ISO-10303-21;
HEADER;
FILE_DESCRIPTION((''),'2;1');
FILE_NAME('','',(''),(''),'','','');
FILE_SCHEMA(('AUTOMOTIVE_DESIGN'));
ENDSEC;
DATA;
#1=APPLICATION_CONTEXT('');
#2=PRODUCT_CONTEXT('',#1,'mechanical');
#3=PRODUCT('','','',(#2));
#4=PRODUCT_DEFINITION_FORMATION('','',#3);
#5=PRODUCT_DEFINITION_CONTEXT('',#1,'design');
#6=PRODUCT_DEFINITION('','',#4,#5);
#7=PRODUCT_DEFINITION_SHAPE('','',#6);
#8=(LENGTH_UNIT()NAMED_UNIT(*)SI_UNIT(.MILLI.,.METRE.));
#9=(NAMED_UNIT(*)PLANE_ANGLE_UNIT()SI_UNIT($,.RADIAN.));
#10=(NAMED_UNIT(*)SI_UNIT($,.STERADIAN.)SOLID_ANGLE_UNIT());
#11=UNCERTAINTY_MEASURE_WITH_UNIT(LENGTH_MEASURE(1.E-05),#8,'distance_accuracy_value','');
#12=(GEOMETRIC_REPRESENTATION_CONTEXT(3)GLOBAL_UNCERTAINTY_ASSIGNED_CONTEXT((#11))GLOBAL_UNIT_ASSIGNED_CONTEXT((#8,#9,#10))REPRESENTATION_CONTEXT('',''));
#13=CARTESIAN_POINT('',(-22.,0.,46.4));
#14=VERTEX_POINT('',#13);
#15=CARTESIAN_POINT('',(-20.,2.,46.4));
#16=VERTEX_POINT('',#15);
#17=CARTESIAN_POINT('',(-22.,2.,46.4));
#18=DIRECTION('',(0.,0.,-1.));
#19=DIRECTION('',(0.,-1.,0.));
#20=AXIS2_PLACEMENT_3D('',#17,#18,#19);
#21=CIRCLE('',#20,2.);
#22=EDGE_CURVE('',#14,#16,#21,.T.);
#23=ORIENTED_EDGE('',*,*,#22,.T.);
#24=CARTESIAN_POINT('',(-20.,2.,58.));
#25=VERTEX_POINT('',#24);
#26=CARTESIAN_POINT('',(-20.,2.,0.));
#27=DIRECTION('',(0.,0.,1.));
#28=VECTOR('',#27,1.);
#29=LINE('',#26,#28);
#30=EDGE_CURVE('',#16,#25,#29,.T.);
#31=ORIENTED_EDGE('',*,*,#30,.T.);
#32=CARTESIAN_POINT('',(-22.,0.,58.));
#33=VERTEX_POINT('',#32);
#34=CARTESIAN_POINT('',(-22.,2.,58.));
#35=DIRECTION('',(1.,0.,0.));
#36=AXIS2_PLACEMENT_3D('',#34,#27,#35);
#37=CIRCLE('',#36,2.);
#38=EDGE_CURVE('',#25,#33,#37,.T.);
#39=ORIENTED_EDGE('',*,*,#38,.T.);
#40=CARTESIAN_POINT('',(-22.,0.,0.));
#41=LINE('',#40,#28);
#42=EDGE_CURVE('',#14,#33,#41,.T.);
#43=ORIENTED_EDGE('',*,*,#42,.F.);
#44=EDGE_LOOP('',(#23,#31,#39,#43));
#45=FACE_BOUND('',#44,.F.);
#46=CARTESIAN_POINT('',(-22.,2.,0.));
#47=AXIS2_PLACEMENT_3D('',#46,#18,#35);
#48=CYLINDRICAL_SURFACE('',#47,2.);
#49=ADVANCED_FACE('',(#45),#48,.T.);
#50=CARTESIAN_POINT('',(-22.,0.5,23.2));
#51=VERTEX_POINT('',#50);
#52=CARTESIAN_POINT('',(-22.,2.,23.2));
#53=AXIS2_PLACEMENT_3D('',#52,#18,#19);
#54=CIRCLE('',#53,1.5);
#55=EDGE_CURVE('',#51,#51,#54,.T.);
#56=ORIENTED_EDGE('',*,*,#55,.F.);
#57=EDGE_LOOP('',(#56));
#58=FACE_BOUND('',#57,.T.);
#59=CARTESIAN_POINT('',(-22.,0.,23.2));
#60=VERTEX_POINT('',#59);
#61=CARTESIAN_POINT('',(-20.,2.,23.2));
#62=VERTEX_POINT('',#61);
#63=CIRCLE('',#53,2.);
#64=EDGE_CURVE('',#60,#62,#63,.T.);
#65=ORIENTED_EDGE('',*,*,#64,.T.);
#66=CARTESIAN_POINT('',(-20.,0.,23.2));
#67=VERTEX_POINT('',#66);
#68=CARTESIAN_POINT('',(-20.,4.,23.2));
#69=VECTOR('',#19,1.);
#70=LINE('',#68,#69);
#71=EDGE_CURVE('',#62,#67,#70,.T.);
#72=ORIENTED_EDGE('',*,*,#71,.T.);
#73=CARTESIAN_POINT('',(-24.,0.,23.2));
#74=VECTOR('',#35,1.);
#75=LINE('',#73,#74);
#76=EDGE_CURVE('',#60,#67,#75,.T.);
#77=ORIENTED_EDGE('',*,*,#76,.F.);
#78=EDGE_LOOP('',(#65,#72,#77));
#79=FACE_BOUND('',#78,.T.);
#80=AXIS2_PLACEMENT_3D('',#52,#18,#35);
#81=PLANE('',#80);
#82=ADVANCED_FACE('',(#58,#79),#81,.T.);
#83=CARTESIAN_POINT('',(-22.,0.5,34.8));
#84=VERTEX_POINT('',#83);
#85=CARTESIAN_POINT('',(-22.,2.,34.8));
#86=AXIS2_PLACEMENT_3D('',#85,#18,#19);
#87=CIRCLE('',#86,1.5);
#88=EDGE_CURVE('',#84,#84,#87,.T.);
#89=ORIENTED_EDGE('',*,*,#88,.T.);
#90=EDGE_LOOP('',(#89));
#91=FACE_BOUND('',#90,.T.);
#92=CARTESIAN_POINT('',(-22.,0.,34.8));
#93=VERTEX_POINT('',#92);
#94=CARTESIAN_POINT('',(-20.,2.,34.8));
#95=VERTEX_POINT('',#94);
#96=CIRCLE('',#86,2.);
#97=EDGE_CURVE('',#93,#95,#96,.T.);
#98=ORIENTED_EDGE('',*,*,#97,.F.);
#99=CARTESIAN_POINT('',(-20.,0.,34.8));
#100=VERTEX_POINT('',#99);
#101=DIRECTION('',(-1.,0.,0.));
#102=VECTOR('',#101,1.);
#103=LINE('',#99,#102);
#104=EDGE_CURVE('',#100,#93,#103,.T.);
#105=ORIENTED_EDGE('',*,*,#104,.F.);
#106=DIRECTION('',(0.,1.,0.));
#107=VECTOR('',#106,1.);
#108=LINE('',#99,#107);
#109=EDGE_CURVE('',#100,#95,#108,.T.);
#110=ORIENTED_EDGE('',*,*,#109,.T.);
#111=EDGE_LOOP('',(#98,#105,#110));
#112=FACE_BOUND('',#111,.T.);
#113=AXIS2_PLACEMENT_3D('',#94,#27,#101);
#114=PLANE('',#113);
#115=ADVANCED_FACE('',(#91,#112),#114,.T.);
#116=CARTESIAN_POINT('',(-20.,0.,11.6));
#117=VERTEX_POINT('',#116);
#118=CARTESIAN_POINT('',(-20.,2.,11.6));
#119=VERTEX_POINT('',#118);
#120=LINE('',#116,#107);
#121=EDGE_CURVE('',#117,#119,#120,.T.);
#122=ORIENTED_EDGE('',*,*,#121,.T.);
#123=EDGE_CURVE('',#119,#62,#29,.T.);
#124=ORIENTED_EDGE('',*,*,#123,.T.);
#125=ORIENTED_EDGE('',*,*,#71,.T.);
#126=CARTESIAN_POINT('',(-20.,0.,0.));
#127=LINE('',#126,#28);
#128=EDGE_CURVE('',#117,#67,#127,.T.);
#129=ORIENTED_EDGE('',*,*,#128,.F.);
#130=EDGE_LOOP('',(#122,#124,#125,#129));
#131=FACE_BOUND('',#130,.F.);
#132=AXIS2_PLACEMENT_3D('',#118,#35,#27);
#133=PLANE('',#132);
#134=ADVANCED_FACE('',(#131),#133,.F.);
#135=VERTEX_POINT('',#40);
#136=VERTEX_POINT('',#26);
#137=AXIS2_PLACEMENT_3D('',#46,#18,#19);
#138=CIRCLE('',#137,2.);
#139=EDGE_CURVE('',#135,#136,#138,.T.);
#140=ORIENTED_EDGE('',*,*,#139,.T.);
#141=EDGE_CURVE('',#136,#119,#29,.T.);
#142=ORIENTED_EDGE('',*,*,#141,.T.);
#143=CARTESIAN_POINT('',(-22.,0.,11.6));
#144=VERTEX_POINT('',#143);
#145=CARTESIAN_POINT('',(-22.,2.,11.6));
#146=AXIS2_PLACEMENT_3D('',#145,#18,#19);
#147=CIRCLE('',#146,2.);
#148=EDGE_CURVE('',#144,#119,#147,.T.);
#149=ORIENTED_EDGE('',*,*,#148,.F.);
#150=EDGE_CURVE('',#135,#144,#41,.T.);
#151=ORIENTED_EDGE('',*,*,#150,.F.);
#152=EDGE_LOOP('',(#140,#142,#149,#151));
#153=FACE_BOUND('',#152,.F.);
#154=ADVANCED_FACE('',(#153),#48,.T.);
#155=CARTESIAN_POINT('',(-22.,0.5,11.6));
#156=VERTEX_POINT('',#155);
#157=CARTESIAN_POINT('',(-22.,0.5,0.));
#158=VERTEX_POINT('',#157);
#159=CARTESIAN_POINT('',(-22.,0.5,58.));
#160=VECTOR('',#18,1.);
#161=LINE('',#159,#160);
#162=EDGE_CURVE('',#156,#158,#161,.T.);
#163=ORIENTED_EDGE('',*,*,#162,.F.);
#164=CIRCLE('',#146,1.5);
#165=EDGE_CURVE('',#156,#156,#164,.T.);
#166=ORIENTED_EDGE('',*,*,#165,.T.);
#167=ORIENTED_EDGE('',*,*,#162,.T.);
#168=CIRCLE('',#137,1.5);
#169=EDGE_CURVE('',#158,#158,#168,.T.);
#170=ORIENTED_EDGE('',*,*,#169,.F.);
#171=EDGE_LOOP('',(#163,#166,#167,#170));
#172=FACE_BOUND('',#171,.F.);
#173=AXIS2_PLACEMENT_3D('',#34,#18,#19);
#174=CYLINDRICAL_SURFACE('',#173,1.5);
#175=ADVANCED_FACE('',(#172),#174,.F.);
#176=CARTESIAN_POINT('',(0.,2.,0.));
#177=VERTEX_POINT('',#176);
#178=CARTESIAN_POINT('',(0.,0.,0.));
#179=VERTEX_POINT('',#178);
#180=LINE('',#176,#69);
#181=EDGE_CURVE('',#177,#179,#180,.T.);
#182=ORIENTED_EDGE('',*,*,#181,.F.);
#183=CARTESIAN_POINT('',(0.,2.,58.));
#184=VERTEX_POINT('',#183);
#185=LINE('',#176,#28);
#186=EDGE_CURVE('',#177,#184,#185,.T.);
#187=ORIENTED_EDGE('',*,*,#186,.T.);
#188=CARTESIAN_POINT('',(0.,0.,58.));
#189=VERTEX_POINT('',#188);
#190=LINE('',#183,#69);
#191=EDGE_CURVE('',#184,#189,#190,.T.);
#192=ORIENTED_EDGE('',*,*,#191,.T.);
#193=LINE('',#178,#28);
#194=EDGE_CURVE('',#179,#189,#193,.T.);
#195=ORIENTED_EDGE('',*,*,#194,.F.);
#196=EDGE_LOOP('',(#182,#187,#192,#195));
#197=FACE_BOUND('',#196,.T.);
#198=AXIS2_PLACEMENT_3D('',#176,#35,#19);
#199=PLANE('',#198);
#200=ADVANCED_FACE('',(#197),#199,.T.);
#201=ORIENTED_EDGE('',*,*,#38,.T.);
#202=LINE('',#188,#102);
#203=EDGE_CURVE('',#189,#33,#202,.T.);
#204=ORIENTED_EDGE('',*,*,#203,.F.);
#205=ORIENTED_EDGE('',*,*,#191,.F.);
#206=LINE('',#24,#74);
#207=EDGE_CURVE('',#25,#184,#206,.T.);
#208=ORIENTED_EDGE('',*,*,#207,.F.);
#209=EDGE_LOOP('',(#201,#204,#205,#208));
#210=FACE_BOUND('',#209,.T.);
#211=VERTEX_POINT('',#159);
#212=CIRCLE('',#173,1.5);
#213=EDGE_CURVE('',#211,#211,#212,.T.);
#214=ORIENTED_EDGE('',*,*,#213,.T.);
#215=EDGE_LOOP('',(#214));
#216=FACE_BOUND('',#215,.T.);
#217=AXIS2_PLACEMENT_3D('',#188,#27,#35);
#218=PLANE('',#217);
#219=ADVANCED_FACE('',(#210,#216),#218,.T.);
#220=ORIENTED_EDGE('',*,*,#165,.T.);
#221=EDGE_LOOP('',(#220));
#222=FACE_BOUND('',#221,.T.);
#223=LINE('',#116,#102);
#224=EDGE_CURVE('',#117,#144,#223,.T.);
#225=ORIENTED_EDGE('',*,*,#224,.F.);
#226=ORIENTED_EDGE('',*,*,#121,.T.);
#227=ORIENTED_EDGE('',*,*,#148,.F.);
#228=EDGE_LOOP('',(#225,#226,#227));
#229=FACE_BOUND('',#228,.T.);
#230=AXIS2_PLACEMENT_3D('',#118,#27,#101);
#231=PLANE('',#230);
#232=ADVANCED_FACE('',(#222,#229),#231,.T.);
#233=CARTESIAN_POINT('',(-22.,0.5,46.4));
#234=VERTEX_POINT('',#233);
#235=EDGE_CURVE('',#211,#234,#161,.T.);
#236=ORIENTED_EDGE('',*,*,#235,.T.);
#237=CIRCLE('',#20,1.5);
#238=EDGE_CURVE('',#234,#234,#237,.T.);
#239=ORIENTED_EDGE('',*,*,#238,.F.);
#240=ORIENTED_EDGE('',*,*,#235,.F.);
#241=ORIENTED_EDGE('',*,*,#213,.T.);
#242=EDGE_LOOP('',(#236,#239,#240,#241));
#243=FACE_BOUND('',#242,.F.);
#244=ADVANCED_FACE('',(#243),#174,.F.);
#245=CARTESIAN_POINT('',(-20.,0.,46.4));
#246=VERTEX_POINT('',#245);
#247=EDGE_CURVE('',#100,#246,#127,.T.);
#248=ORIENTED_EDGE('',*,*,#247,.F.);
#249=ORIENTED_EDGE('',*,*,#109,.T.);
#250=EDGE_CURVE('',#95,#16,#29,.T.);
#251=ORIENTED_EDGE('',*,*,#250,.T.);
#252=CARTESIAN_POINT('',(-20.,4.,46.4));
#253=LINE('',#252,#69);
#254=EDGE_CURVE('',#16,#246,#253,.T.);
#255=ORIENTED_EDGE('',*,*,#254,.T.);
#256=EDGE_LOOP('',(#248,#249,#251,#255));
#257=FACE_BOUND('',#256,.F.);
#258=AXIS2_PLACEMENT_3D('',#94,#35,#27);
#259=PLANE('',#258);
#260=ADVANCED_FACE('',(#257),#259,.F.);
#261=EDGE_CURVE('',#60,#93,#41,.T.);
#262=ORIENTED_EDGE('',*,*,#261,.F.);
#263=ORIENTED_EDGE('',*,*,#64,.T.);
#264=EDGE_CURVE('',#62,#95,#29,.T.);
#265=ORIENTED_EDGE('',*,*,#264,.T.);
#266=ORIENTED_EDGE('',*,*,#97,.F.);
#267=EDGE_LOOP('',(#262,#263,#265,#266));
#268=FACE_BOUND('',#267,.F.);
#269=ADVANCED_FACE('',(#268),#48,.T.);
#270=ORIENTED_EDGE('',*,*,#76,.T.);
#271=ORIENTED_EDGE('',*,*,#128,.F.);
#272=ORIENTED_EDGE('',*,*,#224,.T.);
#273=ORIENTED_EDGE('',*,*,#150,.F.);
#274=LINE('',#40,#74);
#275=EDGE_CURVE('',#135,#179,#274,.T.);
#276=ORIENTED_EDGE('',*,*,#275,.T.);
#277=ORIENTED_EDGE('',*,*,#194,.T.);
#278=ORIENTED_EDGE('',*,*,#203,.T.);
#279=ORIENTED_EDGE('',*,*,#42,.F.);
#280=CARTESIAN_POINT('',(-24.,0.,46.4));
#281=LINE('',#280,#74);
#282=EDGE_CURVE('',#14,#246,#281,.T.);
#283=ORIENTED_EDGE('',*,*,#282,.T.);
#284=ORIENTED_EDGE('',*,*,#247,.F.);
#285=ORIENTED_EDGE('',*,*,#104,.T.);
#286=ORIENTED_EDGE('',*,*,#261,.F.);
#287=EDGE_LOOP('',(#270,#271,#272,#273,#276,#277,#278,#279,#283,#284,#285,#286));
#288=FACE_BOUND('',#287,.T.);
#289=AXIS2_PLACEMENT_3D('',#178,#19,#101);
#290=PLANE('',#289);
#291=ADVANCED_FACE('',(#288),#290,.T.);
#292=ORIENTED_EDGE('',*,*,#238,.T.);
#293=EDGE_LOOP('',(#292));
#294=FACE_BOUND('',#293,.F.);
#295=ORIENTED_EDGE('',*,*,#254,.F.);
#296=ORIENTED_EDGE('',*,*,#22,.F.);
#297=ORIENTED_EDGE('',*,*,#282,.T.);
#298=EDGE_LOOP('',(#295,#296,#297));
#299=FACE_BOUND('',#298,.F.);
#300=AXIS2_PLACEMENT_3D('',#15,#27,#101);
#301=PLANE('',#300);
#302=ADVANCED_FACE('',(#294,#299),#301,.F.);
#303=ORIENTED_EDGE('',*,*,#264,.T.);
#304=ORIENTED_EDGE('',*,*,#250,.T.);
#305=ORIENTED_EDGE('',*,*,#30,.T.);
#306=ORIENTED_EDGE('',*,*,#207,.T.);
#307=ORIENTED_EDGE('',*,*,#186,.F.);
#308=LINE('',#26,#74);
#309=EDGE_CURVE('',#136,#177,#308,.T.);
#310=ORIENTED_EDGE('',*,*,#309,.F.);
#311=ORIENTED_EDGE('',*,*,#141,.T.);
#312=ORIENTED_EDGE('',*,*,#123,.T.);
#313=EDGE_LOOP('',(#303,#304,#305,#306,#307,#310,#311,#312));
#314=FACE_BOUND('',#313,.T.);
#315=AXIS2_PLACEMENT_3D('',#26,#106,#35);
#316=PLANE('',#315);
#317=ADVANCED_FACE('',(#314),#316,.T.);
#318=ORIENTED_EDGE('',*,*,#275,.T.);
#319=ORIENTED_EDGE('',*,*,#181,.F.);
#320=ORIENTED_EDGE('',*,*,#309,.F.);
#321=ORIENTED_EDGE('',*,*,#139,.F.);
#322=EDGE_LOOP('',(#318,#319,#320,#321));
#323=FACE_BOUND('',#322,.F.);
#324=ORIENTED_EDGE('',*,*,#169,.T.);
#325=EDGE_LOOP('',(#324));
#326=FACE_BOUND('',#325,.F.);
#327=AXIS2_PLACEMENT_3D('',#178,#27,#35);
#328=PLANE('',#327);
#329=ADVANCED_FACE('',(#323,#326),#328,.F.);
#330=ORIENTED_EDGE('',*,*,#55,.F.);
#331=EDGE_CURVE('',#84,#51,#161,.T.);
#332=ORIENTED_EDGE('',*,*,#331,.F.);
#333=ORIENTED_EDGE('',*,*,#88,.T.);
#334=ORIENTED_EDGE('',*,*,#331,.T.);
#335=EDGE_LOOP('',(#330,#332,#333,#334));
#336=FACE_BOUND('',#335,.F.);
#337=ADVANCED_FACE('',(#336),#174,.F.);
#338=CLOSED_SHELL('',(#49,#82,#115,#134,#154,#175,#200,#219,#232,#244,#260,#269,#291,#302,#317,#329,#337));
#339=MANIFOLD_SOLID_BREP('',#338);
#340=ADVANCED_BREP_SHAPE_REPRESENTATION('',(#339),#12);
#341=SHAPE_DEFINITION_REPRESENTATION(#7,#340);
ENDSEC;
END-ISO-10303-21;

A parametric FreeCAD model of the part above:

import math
import FreeCAD as App
import Part
import Sketcher


def add_polygon(sketch, points):
    """Adds a closed chain of lines whose ends are joined by coincident constraints."""
    first, n = sketch.GeometryCount, len(points)
    for a, b in zip(points, points[1:] + points[:1]):
        sketch.addGeometry(Part.LineSegment(App.Vector(*a, 0), App.Vector(*b, 0)), False)
    for i in range(n):
        sketch.addConstraint(Sketcher.Constraint("Coincident", first + i, 2, first + (i + 1) % n, 1))

doc = App.newDocument("Part")
params = doc.addObject("Spreadsheet::Sheet", "Params")
for row, (alias, value) in enumerate([
    ("sketch1_radius", "2 mm"),
    ("sketch1_width", "20 mm"),
    ("pad1_length", "58 mm"),
    ("sketch2_height", "11.6 mm"),
    ("sketch2_width", "4 mm"),
    ("pocket1_length", "4 mm"),
    ("sketch3_diameter", "3 mm"),
    ("hole_diameter", "3 mm"),
], start=1):
    params.set(f"A{row}", alias)
    params.set(f"B{row}", "=" + value)
    params.setAlias(f"B{row}", alias)

body = doc.addObject("PartDesign::Body", "Body")

# Sketch on XY plane
sketch1 = body.newObject("Sketcher::SketchObject", "Sketch")
sketch1.AttachmentSupport = (doc.getObject("XY_Plane"), [""])
sketch1.MapMode = "FlatFace"
sketch1.addGeometry([
    Part.LineSegment(App.Vector(0, 0, 0), App.Vector(0, 2, 0)),
    Part.LineSegment(App.Vector(0, 2, 0), App.Vector(-20, 2, 0)),
    Part.ArcOfCircle(Part.Circle(App.Vector(-22, 2, 0), App.Vector(0, 0, 1), 2), math.radians(0), math.radians(270)),
    Part.LineSegment(App.Vector(-22, 0, 0), App.Vector(0, 0, 0)),
], False)
sketch1.addConstraint([
    Sketcher.Constraint("Coincident", 0, 2, 1, 1),
    Sketcher.Constraint("Coincident", 1, 2, 2, 1),
    Sketcher.Constraint("Tangent", 2, 2, 3, 1),
    Sketcher.Constraint("Coincident", 3, 2, 0, 1),
    Sketcher.Constraint("Vertical", 0),
    Sketcher.Constraint("Horizontal", 1),
    Sketcher.Constraint("Horizontal", 3),
    Sketcher.Constraint("Coincident", 3, 2, -1, 1),
    Sketcher.Constraint("Horizontal", 2, 3, 0, 2),
    Sketcher.Constraint("Radius", 2, 2.0),
    Sketcher.Constraint("DistanceX", 1, 2, 1, 1, 20.0),
])
sketch1.setExpression("Constraints[9]", "Params.sketch1_radius")
sketch1.setExpression("Constraints[10]", "Params.sketch1_width")
pad1 = body.newObject("PartDesign::Pad", "Pad")
pad1.Profile = sketch1
pad1.setExpression("Length", "Params.pad1_length")

# Sketch on XZ plane
sketch2 = body.newObject("Sketcher::SketchObject", "Sketch001")
sketch2.AttachmentSupport = (doc.getObject("XZ_Plane"), [""])
sketch2.MapMode = "FlatFace"
sketch2.AttachmentOffset = App.Placement(App.Vector(0, 0, -2), App.Rotation())
add_polygon(sketch2, [(-20, 23.2), (-20, 11.6), (-24, 11.6), (-24, 23.2)])  # lines 0-3
add_polygon(sketch2, [(-20, 46.4), (-20, 34.8), (-24, 34.8), (-24, 46.4)])  # lines 4-7
sketch2.addConstraint([
    Sketcher.Constraint("Vertical", 0),
    Sketcher.Constraint("Horizontal", 1),
    Sketcher.Constraint("Vertical", 2),
    Sketcher.Constraint("Horizontal", 3),
    Sketcher.Constraint("Vertical", 4),
    Sketcher.Constraint("Horizontal", 5),
    Sketcher.Constraint("Vertical", 6),
    Sketcher.Constraint("Horizontal", 7),
    Sketcher.Constraint("Vertical", 3, 2, 4, 2),
    Sketcher.Constraint("Vertical", 2, 2, 5, 2),
    Sketcher.Constraint("Equal", 2, 4),
    Sketcher.Constraint("DistanceY", 0, 2, 0, 1, 11.6),
    Sketcher.Constraint("DistanceY", -1, 1, 0, 2, 11.6),
    Sketcher.Constraint("DistanceY", 3, 2, 4, 2, 11.6),
    Sketcher.Constraint("DistanceX", 1, 2, 1, 1, 4.0),
    Sketcher.Constraint("DistanceX", 0, 2, -1, 1, 20.0),
])
sketch2.setExpression("Constraints[19]", "Params.sketch2_height")
sketch2.setExpression("Constraints[22]", "Params.sketch2_width")
pocket1 = body.newObject("PartDesign::Pocket", "Pocket")
pocket1.Profile = sketch2
pocket1.setExpression("Length", "Params.pocket1_length")
pocket1.Midplane = True

# Sketch on XY plane
sketch3 = body.newObject("Sketcher::SketchObject", "Sketch002")
sketch3.AttachmentSupport = (doc.getObject("XY_Plane"), [""])
sketch3.MapMode = "FlatFace"
sketch3.AttachmentOffset = App.Placement(App.Vector(0, 0, 58), App.Rotation())
sketch3.addGeometry(Part.Circle(App.Vector(-22, 2, 0), App.Vector(0, 0, 1), 1.5), False)
sketch3.addConstraint([
    Sketcher.Constraint("Diameter", 0, 3.0),
    Sketcher.Constraint("DistanceX", 0, 3, -1, 1, 22.0),
    Sketcher.Constraint("DistanceY", -1, 1, 0, 3, 2.0),
])
sketch3.setExpression("Constraints[0]", "Params.sketch3_diameter")
doc.recompute()
hole = body.newObject("PartDesign::Hole", "Hole")
hole.Profile = sketch3
hole.ThreadType = "None"
hole.setExpression("Diameter", "Params.hole_diameter")
hole.DepthType = "ThroughAll"

doc.recompute()
